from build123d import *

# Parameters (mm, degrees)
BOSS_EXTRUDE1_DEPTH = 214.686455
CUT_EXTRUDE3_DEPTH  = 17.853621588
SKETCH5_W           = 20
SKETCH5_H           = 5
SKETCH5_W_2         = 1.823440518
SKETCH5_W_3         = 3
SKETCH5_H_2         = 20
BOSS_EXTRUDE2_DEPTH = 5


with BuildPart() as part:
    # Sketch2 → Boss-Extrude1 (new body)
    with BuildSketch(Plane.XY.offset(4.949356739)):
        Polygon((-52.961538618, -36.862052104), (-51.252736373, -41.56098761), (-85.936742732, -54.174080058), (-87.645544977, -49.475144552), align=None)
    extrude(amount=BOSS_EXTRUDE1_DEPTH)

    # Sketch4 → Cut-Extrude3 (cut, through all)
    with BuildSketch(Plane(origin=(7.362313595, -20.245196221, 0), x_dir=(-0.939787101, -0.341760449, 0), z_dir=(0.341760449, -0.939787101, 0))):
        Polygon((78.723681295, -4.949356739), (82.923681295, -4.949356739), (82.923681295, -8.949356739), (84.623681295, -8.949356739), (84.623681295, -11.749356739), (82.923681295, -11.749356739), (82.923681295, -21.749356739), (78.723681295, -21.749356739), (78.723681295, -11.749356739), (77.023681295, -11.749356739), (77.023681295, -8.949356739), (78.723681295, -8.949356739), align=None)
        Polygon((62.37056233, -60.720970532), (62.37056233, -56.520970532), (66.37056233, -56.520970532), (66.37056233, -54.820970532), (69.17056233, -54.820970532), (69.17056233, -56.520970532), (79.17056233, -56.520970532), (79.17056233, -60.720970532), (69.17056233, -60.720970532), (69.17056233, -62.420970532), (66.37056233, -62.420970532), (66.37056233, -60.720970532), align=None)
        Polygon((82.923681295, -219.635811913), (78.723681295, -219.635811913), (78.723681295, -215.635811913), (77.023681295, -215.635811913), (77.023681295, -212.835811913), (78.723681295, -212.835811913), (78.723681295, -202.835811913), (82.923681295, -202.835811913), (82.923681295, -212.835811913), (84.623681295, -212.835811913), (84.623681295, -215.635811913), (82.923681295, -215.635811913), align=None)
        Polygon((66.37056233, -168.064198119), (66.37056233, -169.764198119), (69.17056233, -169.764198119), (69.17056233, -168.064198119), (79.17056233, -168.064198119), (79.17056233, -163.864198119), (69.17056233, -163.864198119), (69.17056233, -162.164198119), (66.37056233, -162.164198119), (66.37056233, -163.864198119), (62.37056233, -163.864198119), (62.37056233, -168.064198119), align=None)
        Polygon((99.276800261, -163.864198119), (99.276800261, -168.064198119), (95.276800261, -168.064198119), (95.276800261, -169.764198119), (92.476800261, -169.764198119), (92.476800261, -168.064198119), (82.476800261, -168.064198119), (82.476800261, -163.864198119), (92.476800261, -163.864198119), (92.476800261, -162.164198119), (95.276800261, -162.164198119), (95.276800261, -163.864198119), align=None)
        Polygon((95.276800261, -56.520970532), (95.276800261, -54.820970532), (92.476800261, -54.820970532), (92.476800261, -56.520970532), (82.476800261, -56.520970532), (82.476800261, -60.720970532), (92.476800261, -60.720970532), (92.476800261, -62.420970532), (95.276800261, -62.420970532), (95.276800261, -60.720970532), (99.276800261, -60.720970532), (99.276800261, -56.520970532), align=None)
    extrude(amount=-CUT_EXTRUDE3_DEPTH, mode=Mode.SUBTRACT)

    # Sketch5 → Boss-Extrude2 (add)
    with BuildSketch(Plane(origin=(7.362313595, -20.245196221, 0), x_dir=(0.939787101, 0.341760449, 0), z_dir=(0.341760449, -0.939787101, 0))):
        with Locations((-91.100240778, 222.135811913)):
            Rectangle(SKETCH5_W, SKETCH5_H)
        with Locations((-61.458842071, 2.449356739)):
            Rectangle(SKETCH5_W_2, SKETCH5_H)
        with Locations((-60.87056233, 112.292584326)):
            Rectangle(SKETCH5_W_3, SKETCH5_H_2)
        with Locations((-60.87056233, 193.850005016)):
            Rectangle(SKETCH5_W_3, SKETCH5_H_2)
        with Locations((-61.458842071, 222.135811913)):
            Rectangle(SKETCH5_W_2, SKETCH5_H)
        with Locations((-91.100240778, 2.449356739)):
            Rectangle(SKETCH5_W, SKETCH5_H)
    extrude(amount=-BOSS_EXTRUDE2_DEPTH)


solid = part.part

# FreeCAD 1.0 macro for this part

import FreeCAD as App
import Part
import Sketcher
Q = App.Units.Quantity


def add_polygon(sketch, points):
    """Adds a closed chain of lines whose ends are joined by coincident constraints."""
    first, n = sketch.GeometryCount, len(points)
    for a, b in zip(points, points[1:] + points[:1]):
        sketch.addGeometry(Part.LineSegment(App.Vector(*a, 0), App.Vector(*b, 0)), False)
    for i in range(n):
        sketch.addConstraint(Sketcher.Constraint("Coincident", first + i, 2, first + (i + 1) % n, 1))

doc = App.newDocument("Part")
params = doc.addObject("Spreadsheet::Sheet", "Params")
for row, (alias, value) in enumerate([
    ("sketch1_length", "5 mm"),
    ("pad1_length", "214.686455 mm"),
    ("sketch2_width", "4 mm"),
    ("sketch2_width2", "10 mm"),
    ("sketch2_width3", "4.2 mm"),
    ("sketch2_width4", "1.7 mm"),
    ("sketch2_width5", "2.8 mm"),
    ("sketch3_width", "20 mm"),
    ("sketch3_width2", "3 mm"),
    ("sketch3_height", "5 mm"),
    ("pad2_length", "5 mm"),
], start=1):
    params.set(f"A{row}", alias)
    params.set(f"B{row}", "=" + value)
    params.setAlias(f"B{row}", alias)

body = doc.addObject("PartDesign::Body", "Body")
body.AllowCompound = True

sketch1 = body.newObject("Sketcher::SketchObject", "Sketch")
sketch1.AttachmentSupport = (doc.getObject("XY_Plane"), [""])
sketch1.MapMode = "FlatFace"
sketch1.AttachmentOffset = App.Placement(App.Vector(0, 0, 4.949357), App.Rotation())
add_polygon(sketch1, [(-51.252736, -41.560988), (-52.961539, -36.862052), (-87.645545, -49.475145), (-85.936743, -54.17408)])
sketch1.addConstraint([
    Sketcher.Constraint("Perpendicular", 0, 1),
    Sketcher.Constraint("Perpendicular", 1, 2),
    Sketcher.Constraint("Perpendicular", 2, 3),
    Sketcher.Constraint("Distance", 0, Q("5 mm")),
    Sketcher.Constraint("DistanceX", 0, 2, -1, 1, Q("52.961539 mm")),
    Sketcher.Constraint("DistanceY", 2, 2, -1, 1, Q("54.17408 mm")),
    Sketcher.Constraint("DistanceX", 1, 2, 3, 2, Q("36.392809 mm")),
    Sketcher.Constraint("Distance", 1, Q("36.906238 mm")),
])
sketch1.setExpression("Constraints[7]", "Params.sketch1_length")
pad1 = body.newObject("PartDesign::Pad", "Pad")
pad1.Profile = sketch1
pad1.setExpression("Length", "Params.pad1_length")

sketch2 = body.newObject("Sketcher::SketchObject", "Sketch001")
sketch2.Placement = App.Placement(App.Vector(7.362314, -20.245196, 0), App.Rotation(App.Vector(-0.939787101, -0.341760449, 0), App.Vector(0, 0, -1), App.Vector(0.341760449, -0.939787101, 0), "ZXY"))
add_polygon(sketch2, [(82.923681, -4.949357), (78.723681, -4.949357), (78.723681, -8.949357), (77.023681, -8.949357), (77.023681, -11.749357), (78.723681, -11.749357), (78.723681, -21.749357), (82.923681, -21.749357), (82.923681, -11.749357), (84.623681, -11.749357), (84.623681, -8.949357), (82.923681, -8.949357)])
add_polygon(sketch2, [(62.370562, -56.52097), (62.370562, -60.72097), (66.370562, -60.72097), (66.370562, -62.42097), (69.170562, -62.42097), (69.170562, -60.72097), (79.170562, -60.72097), (79.170562, -56.52097), (69.170562, -56.52097), (69.170562, -54.820971), (66.370562, -54.820971), (66.370562, -56.52097)])
add_polygon(sketch2, [(78.723681, -219.635812), (82.923681, -219.635812), (82.923681, -215.635812), (84.623681, -215.635812), (84.623681, -212.835812), (82.923681, -212.835812), (82.923681, -202.835812), (78.723681, -202.835812), (78.723681, -212.835812), (77.023681, -212.835812), (77.023681, -215.635812), (78.723681, -215.635812)])
add_polygon(sketch2, [(66.370562, -168.064198), (66.370562, -169.764198), (69.170562, -169.764198), (69.170562, -168.064198), (79.170562, -168.064198), (79.170562, -163.864198), (69.170562, -163.864198), (69.170562, -162.164198), (66.370562, -162.164198), (66.370562, -163.864198), (62.370562, -163.864198), (62.370562, -168.064198)])
add_polygon(sketch2, [(99.2768, -168.064198), (99.2768, -163.864198), (95.2768, -163.864198), (95.2768, -162.164198), (92.4768, -162.164198), (92.4768, -163.864198), (82.4768, -163.864198), (82.4768, -168.064198), (92.4768, -168.064198), (92.4768, -169.764198), (95.2768, -169.764198), (95.2768, -168.064198)])
add_polygon(sketch2, [(95.2768, -56.52097), (95.2768, -54.820971), (92.4768, -54.820971), (92.4768, -56.52097), (82.4768, -56.52097), (82.4768, -60.72097), (92.4768, -60.72097), (92.4768, -62.42097), (95.2768, -62.42097), (95.2768, -60.72097), (99.2768, -60.72097), (99.2768, -56.52097)])
sketch2.addConstraint([
    Sketcher.Constraint("Horizontal", 0),
    Sketcher.Constraint("Vertical", 1),
    Sketcher.Constraint("Horizontal", 2),
    Sketcher.Constraint("Vertical", 3),
    Sketcher.Constraint("Horizontal", 4),
    Sketcher.Constraint("Vertical", 5),
    Sketcher.Constraint("Horizontal", 6),
    Sketcher.Constraint("Vertical", 7),
    Sketcher.Constraint("Horizontal", 8),
    Sketcher.Constraint("Vertical", 9),
    Sketcher.Constraint("Horizontal", 10),
    Sketcher.Constraint("Vertical", 11),
    Sketcher.Constraint("Vertical", 12),
    Sketcher.Constraint("Horizontal", 13),
    Sketcher.Constraint("Vertical", 14),
    Sketcher.Constraint("Horizontal", 15),
    Sketcher.Constraint("Vertical", 16),
    Sketcher.Constraint("Horizontal", 17),
    Sketcher.Constraint("Vertical", 18),
    Sketcher.Constraint("Horizontal", 19),
    Sketcher.Constraint("Vertical", 20),
    Sketcher.Constraint("Horizontal", 21),
    Sketcher.Constraint("Vertical", 22),
    Sketcher.Constraint("Horizontal", 23),
    Sketcher.Constraint("Horizontal", 24),
    Sketcher.Constraint("Vertical", 25),
    Sketcher.Constraint("Horizontal", 26),
    Sketcher.Constraint("Vertical", 27),
    Sketcher.Constraint("Horizontal", 28),
    Sketcher.Constraint("Vertical", 29),
    Sketcher.Constraint("Horizontal", 30),
    Sketcher.Constraint("Vertical", 31),
    Sketcher.Constraint("Horizontal", 32),
    Sketcher.Constraint("Vertical", 33),
    Sketcher.Constraint("Horizontal", 34),
    Sketcher.Constraint("Vertical", 35),
    Sketcher.Constraint("Vertical", 36),
    Sketcher.Constraint("Horizontal", 37),
    Sketcher.Constraint("Vertical", 38),
    Sketcher.Constraint("Horizontal", 39),
    Sketcher.Constraint("Vertical", 40),
    Sketcher.Constraint("Horizontal", 41),
    Sketcher.Constraint("Vertical", 42),
    Sketcher.Constraint("Horizontal", 43),
    Sketcher.Constraint("Vertical", 44),
    Sketcher.Constraint("Horizontal", 45),
    Sketcher.Constraint("Vertical", 46),
    Sketcher.Constraint("Horizontal", 47),
    Sketcher.Constraint("Vertical", 48),
    Sketcher.Constraint("Horizontal", 49),
    Sketcher.Constraint("Vertical", 50),
    Sketcher.Constraint("Horizontal", 51),
    Sketcher.Constraint("Vertical", 52),
    Sketcher.Constraint("Horizontal", 53),
    Sketcher.Constraint("Vertical", 54),
    Sketcher.Constraint("Horizontal", 55),
    Sketcher.Constraint("Vertical", 56),
    Sketcher.Constraint("Horizontal", 57),
    Sketcher.Constraint("Vertical", 58),
    Sketcher.Constraint("Horizontal", 59),
    Sketcher.Constraint("Vertical", 60),
    Sketcher.Constraint("Horizontal", 61),
    Sketcher.Constraint("Vertical", 62),
    Sketcher.Constraint("Horizontal", 63),
    Sketcher.Constraint("Vertical", 64),
    Sketcher.Constraint("Horizontal", 65),
    Sketcher.Constraint("Vertical", 66),
    Sketcher.Constraint("Horizontal", 67),
    Sketcher.Constraint("Vertical", 68),
    Sketcher.Constraint("Horizontal", 69),
    Sketcher.Constraint("Vertical", 70),
    Sketcher.Constraint("Horizontal", 71),
    Sketcher.Constraint("Horizontal", 4, 2, 7, 2),
    Sketcher.Constraint("Horizontal", 2, 2, 9, 2),
    Sketcher.Constraint("Horizontal", 13, 2, 16, 2),
    Sketcher.Constraint("Horizontal", 19, 2, 22, 2),
    Sketcher.Constraint("Horizontal", 28, 2, 31, 2),
    Sketcher.Constraint("Horizontal", 26, 2, 33, 2),
    Sketcher.Constraint("Horizontal", 41, 2, 44, 2),
    Sketcher.Constraint("Horizontal", 39, 2, 46, 2),
    Sketcher.Constraint("Horizontal", 45, 2, 48, 2),
    Sketcher.Constraint("Horizontal", 43, 2, 50, 2),
    Sketcher.Constraint("Horizontal", 49, 2, 52, 2),
    Sketcher.Constraint("Horizontal", 47, 2, 54, 2),
    Sketcher.Constraint("Horizontal", 37, 2, 56, 2),
    Sketcher.Constraint("Horizontal", 55, 2, 58, 2),
    Sketcher.Constraint("Horizontal", 21, 2, 60, 2),
    Sketcher.Constraint("Horizontal", 23, 2, 62, 2),
    Sketcher.Constraint("Horizontal", 17, 2, 64, 2),
    Sketcher.Constraint("Horizontal", 15, 2, 66, 2),
    Sketcher.Constraint("Horizontal", 65, 2, 68, 2),
    Sketcher.Constraint("Horizontal", 63, 2, 70, 2),
    Sketcher.Constraint("Vertical", 1, 2, 4, 2),
    Sketcher.Constraint("Vertical", 7, 2, 10, 2),
    Sketcher.Constraint("Vertical", 16, 2, 19, 2),
    Sketcher.Constraint("Vertical", 14, 2, 21, 2),
    Sketcher.Constraint("Vertical", 11, 2, 24, 2),
    Sketcher.Constraint("Vertical", 9, 2, 26, 2),
    Sketcher.Constraint("Vertical", 25, 2, 28, 2),
    Sketcher.Constraint("Vertical", 5, 2, 30, 2),
    Sketcher.Constraint("Vertical", 3, 2, 32, 2),
    Sketcher.Constraint("Vertical", 31, 2, 34, 2),
    Sketcher.Constraint("Vertical", 22, 2, 36, 2),
    Sketcher.Constraint("Vertical", 20, 2, 37, 2),
    Sketcher.Constraint("Vertical", 18, 2, 39, 2),
    Sketcher.Constraint("Vertical", 38, 2, 41, 2),
    Sketcher.Constraint("Vertical", 36, 2, 43, 2),
    Sketcher.Constraint("Vertical", 23, 2, 45, 2),
    Sketcher.Constraint("Vertical", 52, 2, 55, 2),
    Sketcher.Constraint("Vertical", 50, 2, 57, 2),
    Sketcher.Constraint("Vertical", 58, 2, 60, 2),
    Sketcher.Constraint("Vertical", 56, 2, 61, 2),
    Sketcher.Constraint("Vertical", 54, 2, 63, 2),
    Sketcher.Constraint("Vertical", 62, 2, 65, 2),
    Sketcher.Constraint("Vertical", 60, 2, 67, 2),
    Sketcher.Constraint("Vertical", 59, 2, 69, 2),
    Sketcher.Constraint("Equal", 4, 8),
    Sketcher.Constraint("Equal", 47, 49),
    Sketcher.Constraint("Equal", 43, 51),
    Sketcher.Constraint("Equal", 41, 53),
    Sketcher.Constraint("Equal", 71, 1),
    Sketcher.Constraint("Equal", 67, 3),
    Sketcher.Constraint("Equal", 65, 5),
    Sketcher.Constraint("Equal", 30, 12),
    Sketcher.Constraint("Equal", 34, 14),
    Sketcher.Constraint("Equal", 16, 20),
    Sketcher.Constraint("Equal", 11, 25),
    Sketcher.Constraint("Equal", 9, 27),
    Sketcher.Constraint("Equal", 7, 29),
    Sketcher.Constraint("Equal", 22, 36),
    Sketcher.Constraint("Equal", 18, 40),
    Sketcher.Constraint("Equal", 38, 42),
    Sketcher.Constraint("DistanceX", 13, 1, 13, 2, Q("4 mm")),
    Sketcher.Constraint("DistanceX", 17, 1, 17, 2, Q("10 mm")),
    Sketcher.Constraint("DistanceX", 0, 2, 0, 1, Q("4.2 mm")),
    Sketcher.Constraint("DistanceX", 2, 2, 2, 1, Q("1.7 mm")),
    Sketcher.Constraint("DistanceX", 15, 1, 15, 2, Q("2.8 mm")),
    Sketcher.Constraint("DistanceY", 36, 2, -1, 1, Q("169.764198 mm")),
    Sketcher.Constraint("DistanceX", -1, 1, 48, 2, Q("99.2768 mm")),
    Sketcher.Constraint("DistanceX", -1, 1, 0, 2, Q("78.723681 mm")),
    Sketcher.Constraint("DistanceY", 12, 2, -1, 1, Q("60.72097 mm")),
    Sketcher.Constraint("DistanceY", 24, 2, -1, 1, Q("219.635812 mm")),
    Sketcher.Constraint("DistanceY", 0, 2, -1, 1, Q("4.949357 mm")),
    Sketcher.Constraint("DistanceX", -1, 1, 12, 2, Q("62.370562 mm")),
])
sketch2.setExpression("Constraints[204]", "Params.sketch2_width")
sketch2.setExpression("Constraints[205]", "Params.sketch2_width2")
sketch2.setExpression("Constraints[206]", "Params.sketch2_width3")
sketch2.setExpression("Constraints[207]", "Params.sketch2_width4")
sketch2.setExpression("Constraints[208]", "Params.sketch2_width5")
pocket1 = body.newObject("PartDesign::Pocket", "Pocket")
pocket1.Profile = sketch2
pocket1.Type = "ThroughAll"

sketch3 = body.newObject("Sketcher::SketchObject", "Sketch002")
sketch3.Placement = App.Placement(App.Vector(7.362314, -20.245196, 0), App.Rotation(App.Vector(0.939787101, 0.341760449, 0), App.Vector(0, 0, 1), App.Vector(0.341760449, -0.939787101, 0), "ZXY"))
add_polygon(sketch3, [(-101.100241, 224.635812), (-101.100241, 219.635812), (-81.100241, 219.635812), (-81.100241, 224.635812)])
add_polygon(sketch3, [(-62.370562, 4.949357), (-62.370562, -0.050643), (-60.547122, -0.050643), (-60.547122, 4.949357)])
add_polygon(sketch3, [(-62.370562, 122.292584), (-62.370562, 102.292584), (-59.370562, 102.292584), (-59.370562, 122.292584)])
add_polygon(sketch3, [(-62.370562, 203.850005), (-62.370562, 183.850005), (-59.370562, 183.850005), (-59.370562, 203.850005)])
add_polygon(sketch3, [(-62.370562, 224.635812), (-62.370562, 219.635812), (-60.547122, 219.635812), (-60.547122, 224.635812)])
add_polygon(sketch3, [(-101.100241, 4.949357), (-101.100241, -0.050643), (-81.100241, -0.050643), (-81.100241, 4.949357)])
sketch3.addConstraint([
    Sketcher.Constraint("Vertical", 0),
    Sketcher.Constraint("Horizontal", 1),
    Sketcher.Constraint("Vertical", 2),
    Sketcher.Constraint("Horizontal", 3),
    Sketcher.Constraint("Vertical", 4),
    Sketcher.Constraint("Horizontal", 5),
    Sketcher.Constraint("Vertical", 6),
    Sketcher.Constraint("Horizontal", 7),
    Sketcher.Constraint("Vertical", 8),
    Sketcher.Constraint("Horizontal", 9),
    Sketcher.Constraint("Vertical", 10),
    Sketcher.Constraint("Horizontal", 11),
    Sketcher.Constraint("Vertical", 12),
    Sketcher.Constraint("Horizontal", 13),
    Sketcher.Constraint("Vertical", 14),
    Sketcher.Constraint("Horizontal", 15),
    Sketcher.Constraint("Vertical", 16),
    Sketcher.Constraint("Horizontal", 17),
    Sketcher.Constraint("Vertical", 18),
    Sketcher.Constraint("Horizontal", 19),
    Sketcher.Constraint("Vertical", 20),
    Sketcher.Constraint("Horizontal", 21),
    Sketcher.Constraint("Vertical", 22),
    Sketcher.Constraint("Horizontal", 23),
    Sketcher.Constraint("Horizontal", 1, 2, 16, 2),
    Sketcher.Constraint("Horizontal", 3, 2, 18, 2),
    Sketcher.Constraint("Horizontal", 5, 2, 20, 2),
    Sketcher.Constraint("Horizontal", 7, 2, 22, 2),
    Sketcher.Constraint("Vertical", 7, 2, 8, 2),
    Sketcher.Constraint("Vertical", 11, 2, 12, 2),
    Sketcher.Constraint("Vertical", 10, 2, 13, 2),
    Sketcher.Constraint("Vertical", 15, 2, 16, 2),
    Sketcher.Constraint("Vertical", 6, 2, 17, 2),
    Sketcher.Constraint("Vertical", 3, 2, 20, 2),
    Sketcher.Constraint("Vertical", 2, 2, 21, 2),
    Sketcher.Constraint("Equal", 2, 4),
    Sketcher.Constraint("Equal", 23, 8),
    Sketcher.Constraint("Equal", 10, 12),
    Sketcher.Constraint("DistanceX", 1, 1, 1, 2, Q("20 mm")),
    Sketcher.Constraint("DistanceX", 9, 1, 9, 2, Q("3 mm")),
    Sketcher.Constraint("DistanceY", 0, 2, 0, 1, Q("5 mm")),
    Sketcher.Constraint("DistanceX", 5, 1, 5, 2, Q("1.823441 mm")),
    Sketcher.Constraint("DistanceX", 0, 2, -1, 1, Q("101.100241 mm")),
    Sketcher.Constraint("DistanceY", -1, 1, 0, 2, Q("219.635812 mm")),
    Sketcher.Constraint("DistanceX", 5, 2, -1, 1, Q("60.547122 mm")),
    Sketcher.Constraint("DistanceY", 11, 2, 12, 2, Q("61.557421 mm")),
    Sketcher.Constraint("DistanceY", 4, 2, -1, 1, Q("0.050643 mm")),
    Sketcher.Constraint("DistanceY", -1, 1, 8, 2, Q("102.292584 mm")),
])
sketch3.setExpression("Constraints[62]", "Params.sketch3_width")
sketch3.setExpression("Constraints[63]", "Params.sketch3_width2")
sketch3.setExpression("Constraints[64]", "Params.sketch3_height")
pad2 = body.newObject("PartDesign::Pad", "Pad001")
pad2.Profile = sketch3
pad2.setExpression("Length", "Params.pad2_length")
pad2.Reversed = True

doc.recompute()
